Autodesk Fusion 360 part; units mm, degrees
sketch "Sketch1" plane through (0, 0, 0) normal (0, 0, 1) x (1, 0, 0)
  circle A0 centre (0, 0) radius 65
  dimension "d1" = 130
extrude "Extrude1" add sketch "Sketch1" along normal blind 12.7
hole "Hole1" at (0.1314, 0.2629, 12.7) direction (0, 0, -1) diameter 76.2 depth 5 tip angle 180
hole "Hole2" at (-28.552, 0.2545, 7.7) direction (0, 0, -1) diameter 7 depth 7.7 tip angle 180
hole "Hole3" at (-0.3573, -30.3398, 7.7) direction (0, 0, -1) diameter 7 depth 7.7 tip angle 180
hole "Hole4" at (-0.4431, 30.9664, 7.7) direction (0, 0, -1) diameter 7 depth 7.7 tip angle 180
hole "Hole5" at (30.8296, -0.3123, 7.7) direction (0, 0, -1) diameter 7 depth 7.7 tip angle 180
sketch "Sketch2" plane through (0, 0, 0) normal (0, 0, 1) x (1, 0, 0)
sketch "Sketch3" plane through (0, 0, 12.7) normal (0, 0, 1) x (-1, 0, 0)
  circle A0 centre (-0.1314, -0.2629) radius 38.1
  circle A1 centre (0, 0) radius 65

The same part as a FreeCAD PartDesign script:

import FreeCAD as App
import Part
import Sketcher
from FreeCAD import Vector

doc = App.newDocument("Part")
body = doc.addObject("PartDesign::Body", "Body")

# Sketch on XY plane
sketch1 = body.newObject("Sketcher::SketchObject", "Sketch")
sketch1.AttachmentSupport = (doc.getObject("XY_Plane"), [""])
sketch1.MapMode = "FlatFace"
sketch1.addGeometry(Part.Circle(Vector(0, 0, 0), Vector(0, 0, 1), 65), False)
sketch1.addConstraint(Sketcher.Constraint("Coincident", 0, 3, -1, 1))
sketch1.addConstraint(Sketcher.Constraint("Diameter", 0, 130.0))
pad1 = body.newObject("PartDesign::Pad", "Pad")
pad1.Profile = sketch1
pad1.Length = 12.7

# Sketch on XY plane
sketch2 = body.newObject("Sketcher::SketchObject", "Sketch001")
sketch2.AttachmentSupport = (doc.getObject("XY_Plane"), [""])
sketch2.MapMode = "FlatFace"
sketch2.AttachmentOffset = App.Placement(Vector(0, 0, 12.7), App.Rotation())
sketch2.addGeometry(Part.Circle(Vector(0, 0, 0), Vector(0, 0, 1), 38), False)
sketch2.addConstraint(Sketcher.Constraint("Diameter", 0, 76.2))
sketch2.addConstraint(Sketcher.Constraint("DistanceY", -1, 1, 0, 3, 0.263))
sketch2.addConstraint(Sketcher.Constraint("DistanceX", -1, 1, 0, 3, 0.1314))
doc.recompute()
hole = body.newObject("PartDesign::Hole", "Hole")
hole.Profile = sketch2
hole.ThreadType = "None"
hole.Diameter = 76.2
hole.DepthType = "Dimension"
hole.Depth = 5
hole.DrillPoint = "Flat"

# Sketch on XY plane
sketch3 = body.newObject("Sketcher::SketchObject", "Sketch002")
sketch3.AttachmentSupport = (doc.getObject("XY_Plane"), [""])
sketch3.MapMode = "FlatFace"
sketch3.AttachmentOffset = App.Placement(Vector(0, 0, 7.7), App.Rotation())
sketch3.addGeometry(Part.Circle(Vector(-28.6, 0.3, 0), Vector(0, 0, 1), 3.5), False)
sketch3.addConstraint(Sketcher.Constraint("Diameter", 0, 7.0))
sketch3.addConstraint(Sketcher.Constraint("DistanceX", 0, 3, -1, 1, 28.552))
sketch3.addConstraint(Sketcher.Constraint("DistanceY", -1, 1, 0, 3, 0.2545))
doc.recompute()
hole2 = body.newObject("PartDesign::Hole", "Hole001")
hole2.Profile = sketch3
hole2.ThreadType = "None"
hole2.Diameter = 7
hole2.DepthType = "Dimension"
hole2.Depth = 7.7
hole2.DrillPoint = "Flat"

# Sketch on XY plane
sketch4 = body.newObject("Sketcher::SketchObject", "Sketch003")
sketch4.AttachmentSupport = (doc.getObject("XY_Plane"), [""])
sketch4.MapMode = "FlatFace"
sketch4.AttachmentOffset = App.Placement(Vector(0, 0, 7.7), App.Rotation())
sketch4.addGeometry(Part.Circle(Vector(-0.4, -30.3, 0), Vector(0, 0, 1), 3.5), False)
sketch4.addConstraint(Sketcher.Constraint("Diameter", 0, 7.0))
sketch4.addConstraint(Sketcher.Constraint("DistanceX", 0, 3, -1, 1, 0.3573))
sketch4.addConstraint(Sketcher.Constraint("DistanceY", 0, 3, -1, 1, 30.3398))
doc.recompute()
hole3 = body.newObject("PartDesign::Hole", "Hole002")
hole3.Profile = sketch4
hole3.ThreadType = "None"
hole3.Diameter = 7
hole3.DepthType = "Dimension"
hole3.Depth = 7.7
hole3.DrillPoint = "Flat"

# Sketch on XY plane
sketch5 = body.newObject("Sketcher::SketchObject", "Sketch004")
sketch5.AttachmentSupport = (doc.getObject("XY_Plane"), [""])
sketch5.MapMode = "FlatFace"
sketch5.AttachmentOffset = App.Placement(Vector(0, 0, 7.7), App.Rotation())
sketch5.addGeometry(Part.Circle(Vector(-0.4, 31, 0), Vector(0, 0, 1), 3.5), False)
sketch5.addConstraint(Sketcher.Constraint("Diameter", 0, 7.0))
sketch5.addConstraint(Sketcher.Constraint("DistanceX", 0, 3, -1, 1, 0.443))
sketch5.addConstraint(Sketcher.Constraint("DistanceY", -1, 1, 0, 3, 30.9664))
doc.recompute()
hole4 = body.newObject("PartDesign::Hole", "Hole003")
hole4.Profile = sketch5
hole4.ThreadType = "None"
hole4.Diameter = 7
hole4.DepthType = "Dimension"
hole4.Depth = 7.7
hole4.DrillPoint = "Flat"

# Sketch on XY plane
sketch6 = body.newObject("Sketcher::SketchObject", "Sketch005")
sketch6.AttachmentSupport = (doc.getObject("XY_Plane"), [""])
sketch6.MapMode = "FlatFace"
sketch6.AttachmentOffset = App.Placement(Vector(0, 0, 7.7), App.Rotation())
sketch6.addGeometry(Part.Circle(Vector(30.8, -0.3, 0), Vector(0, 0, 1), 3.5), False)
sketch6.addConstraint(Sketcher.Constraint("Diameter", 0, 7.0))
sketch6.addConstraint(Sketcher.Constraint("DistanceX", -1, 1, 0, 3, 30.8296))
sketch6.addConstraint(Sketcher.Constraint("DistanceY", 0, 3, -1, 1, 0.3123))
doc.recompute()
hole5 = body.newObject("PartDesign::Hole", "Hole004")
hole5.Profile = sketch6
hole5.ThreadType = "None"
hole5.Diameter = 7
hole5.DepthType = "Dimension"
hole5.Depth = 7.7
hole5.DrillPoint = "Flat"

doc.recompute()
